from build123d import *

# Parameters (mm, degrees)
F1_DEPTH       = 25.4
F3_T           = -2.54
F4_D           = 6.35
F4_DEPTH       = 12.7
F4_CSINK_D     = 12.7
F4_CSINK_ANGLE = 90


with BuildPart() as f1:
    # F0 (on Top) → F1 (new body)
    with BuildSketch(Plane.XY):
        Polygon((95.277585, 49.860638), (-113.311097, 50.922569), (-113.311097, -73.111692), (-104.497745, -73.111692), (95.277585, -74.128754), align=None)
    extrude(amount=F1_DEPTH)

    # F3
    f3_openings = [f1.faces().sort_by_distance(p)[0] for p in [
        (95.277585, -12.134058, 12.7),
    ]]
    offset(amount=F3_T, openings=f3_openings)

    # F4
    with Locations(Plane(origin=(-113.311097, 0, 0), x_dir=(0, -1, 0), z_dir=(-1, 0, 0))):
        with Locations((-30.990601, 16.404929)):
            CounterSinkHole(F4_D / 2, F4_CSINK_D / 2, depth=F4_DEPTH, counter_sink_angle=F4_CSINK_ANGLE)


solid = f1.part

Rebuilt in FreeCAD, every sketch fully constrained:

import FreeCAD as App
import Part
import Sketcher
from FreeCAD import Vector
Q = App.Units.Quantity


def faces_at(feature, points):
    """Names of the faces that lie closest to the given points."""
    faces = feature.Shape.Faces
    near = lambda p: min(range(len(faces)), key=lambda i: faces[i].distToShape(Part.Vertex(*p))[0])
    return sorted({f"Face{near(p) + 1}" for p in points})

doc = App.newDocument("Part")
params = doc.addObject("Spreadsheet::Sheet", "Params")
for row, (alias, value) in enumerate([
    ("pad1_length", "1 in"),
    ("thickness_wall", "0.1 in"),
    ("sketch2_diameter", "0.25 in"),
    ("hole_diameter", "0.25 in"),
    ("hole_depth", "0.5 in"),
    ("hole_csink_diameter", "0.5 in"),
], start=1):
    params.set(f"A{row}", alias)
    params.set(f"B{row}", "=" + value)
    params.setAlias(f"B{row}", alias)

body = doc.addObject("PartDesign::Body", "Body")

# Sketch on XY plane
sketch1 = body.newObject("Sketcher::SketchObject", "Sketch")
sketch1.AttachmentSupport = (doc.getObject("XY_Plane"), [""])
sketch1.MapMode = "FlatFace"
sketch1.addGeometry(Part.LineSegment(Vector(95, 50, 0), Vector(-113, 51, 0)), False)
sketch1.addGeometry(Part.LineSegment(Vector(-113, 51, 0), Vector(-113, -73, 0)), False)
sketch1.addGeometry(Part.LineSegment(Vector(-113, -73, 0), Vector(-104, -73, 0)), False)
sketch1.addGeometry(Part.LineSegment(Vector(-104, -73, 0), Vector(95, -74, 0)), False)
sketch1.addGeometry(Part.LineSegment(Vector(95, -74, 0), Vector(95, 50, 0)), False)
sketch1.addConstraint(Sketcher.Constraint("Coincident", 0, 2, 1, 1))
sketch1.addConstraint(Sketcher.Constraint("Coincident", 1, 2, 2, 1))
sketch1.addConstraint(Sketcher.Constraint("Coincident", 2, 2, 3, 1))
sketch1.addConstraint(Sketcher.Constraint("Coincident", 3, 2, 4, 1))
sketch1.addConstraint(Sketcher.Constraint("Coincident", 4, 2, 0, 1))
sketch1.addConstraint(Sketcher.Constraint("Vertical", 1))
sketch1.addConstraint(Sketcher.Constraint("Horizontal", 2))
sketch1.addConstraint(Sketcher.Constraint("Vertical", 4))
sketch1.addConstraint(Sketcher.Constraint("Parallel", 0, 3))
sketch1.addConstraint(Sketcher.Constraint("DistanceY", 1, 2, 1, 1, Q("124.034261 mm")))
sketch1.addConstraint(Sketcher.Constraint("Distance", 3, Q("199.777919 mm")))
sketch1.addConstraint(Sketcher.Constraint("DistanceX", 2, 1, 2, 2, Q("8.813352 mm")))
sketch1.addConstraint(Sketcher.Constraint("DistanceY", 4, 1, 4, 2, Q("123.989392 mm")))
sketch1.addConstraint(Sketcher.Constraint("DistanceY", -1, 1, 0, 2, Q("50.922569 mm")))
sketch1.addConstraint(Sketcher.Constraint("DistanceX", 0, 2, -1, 1, Q("113.311097 mm")))
pad1 = body.newObject("PartDesign::Pad", "Pad")
pad1.Profile = sketch1
pad1.setExpression("Length", "Params.pad1_length")
doc.recompute()

thickness = body.newObject("PartDesign::Thickness", "Thickness")
thickness.Base = (pad1, faces_at(pad1, [(95.278, -12.134, 12.7)]))
thickness.setExpression("Value", "Params.thickness_wall")
thickness.Reversed = True
thickness.Join = "Arc"

# Sketch on YZ plane
sketch2 = body.newObject("Sketcher::SketchObject", "Sketch001")
sketch2.AttachmentSupport = (doc.getObject("YZ_Plane"), [""])
sketch2.MapMode = "FlatFace"
sketch2.AttachmentOffset = App.Placement(Vector(0, 0, -113.311097), App.Rotation())
sketch2.addGeometry(Part.Circle(Vector(31, 16.4, 0), Vector(0, 0, 1), 3.2), False)
sketch2.addConstraint(Sketcher.Constraint("Diameter", 0, Q("0.25 in")))
sketch2.addConstraint(Sketcher.Constraint("DistanceX", -1, 1, 0, 3, Q("30.990601 mm")))
sketch2.addConstraint(Sketcher.Constraint("DistanceY", -1, 1, 0, 3, Q("16.404929 mm")))
sketch2.setExpression("Constraints[0]", "Params.sketch2_diameter")
doc.recompute()
hole = body.newObject("PartDesign::Hole", "Hole")
hole.Profile = sketch2
hole.ThreadType = "None"
hole.setExpression("Diameter", "Params.hole_diameter")
hole.DepthType = "Dimension"
hole.setExpression("Depth", "Params.hole_depth")
hole.DrillPoint = "Flat"
hole.HoleCutType = "Countersink"
hole.setExpression("HoleCutDiameter", "Params.hole_csink_diameter")
hole.HoleCutCountersinkAngle = 90
hole.Reversed = True

doc.recompute()
